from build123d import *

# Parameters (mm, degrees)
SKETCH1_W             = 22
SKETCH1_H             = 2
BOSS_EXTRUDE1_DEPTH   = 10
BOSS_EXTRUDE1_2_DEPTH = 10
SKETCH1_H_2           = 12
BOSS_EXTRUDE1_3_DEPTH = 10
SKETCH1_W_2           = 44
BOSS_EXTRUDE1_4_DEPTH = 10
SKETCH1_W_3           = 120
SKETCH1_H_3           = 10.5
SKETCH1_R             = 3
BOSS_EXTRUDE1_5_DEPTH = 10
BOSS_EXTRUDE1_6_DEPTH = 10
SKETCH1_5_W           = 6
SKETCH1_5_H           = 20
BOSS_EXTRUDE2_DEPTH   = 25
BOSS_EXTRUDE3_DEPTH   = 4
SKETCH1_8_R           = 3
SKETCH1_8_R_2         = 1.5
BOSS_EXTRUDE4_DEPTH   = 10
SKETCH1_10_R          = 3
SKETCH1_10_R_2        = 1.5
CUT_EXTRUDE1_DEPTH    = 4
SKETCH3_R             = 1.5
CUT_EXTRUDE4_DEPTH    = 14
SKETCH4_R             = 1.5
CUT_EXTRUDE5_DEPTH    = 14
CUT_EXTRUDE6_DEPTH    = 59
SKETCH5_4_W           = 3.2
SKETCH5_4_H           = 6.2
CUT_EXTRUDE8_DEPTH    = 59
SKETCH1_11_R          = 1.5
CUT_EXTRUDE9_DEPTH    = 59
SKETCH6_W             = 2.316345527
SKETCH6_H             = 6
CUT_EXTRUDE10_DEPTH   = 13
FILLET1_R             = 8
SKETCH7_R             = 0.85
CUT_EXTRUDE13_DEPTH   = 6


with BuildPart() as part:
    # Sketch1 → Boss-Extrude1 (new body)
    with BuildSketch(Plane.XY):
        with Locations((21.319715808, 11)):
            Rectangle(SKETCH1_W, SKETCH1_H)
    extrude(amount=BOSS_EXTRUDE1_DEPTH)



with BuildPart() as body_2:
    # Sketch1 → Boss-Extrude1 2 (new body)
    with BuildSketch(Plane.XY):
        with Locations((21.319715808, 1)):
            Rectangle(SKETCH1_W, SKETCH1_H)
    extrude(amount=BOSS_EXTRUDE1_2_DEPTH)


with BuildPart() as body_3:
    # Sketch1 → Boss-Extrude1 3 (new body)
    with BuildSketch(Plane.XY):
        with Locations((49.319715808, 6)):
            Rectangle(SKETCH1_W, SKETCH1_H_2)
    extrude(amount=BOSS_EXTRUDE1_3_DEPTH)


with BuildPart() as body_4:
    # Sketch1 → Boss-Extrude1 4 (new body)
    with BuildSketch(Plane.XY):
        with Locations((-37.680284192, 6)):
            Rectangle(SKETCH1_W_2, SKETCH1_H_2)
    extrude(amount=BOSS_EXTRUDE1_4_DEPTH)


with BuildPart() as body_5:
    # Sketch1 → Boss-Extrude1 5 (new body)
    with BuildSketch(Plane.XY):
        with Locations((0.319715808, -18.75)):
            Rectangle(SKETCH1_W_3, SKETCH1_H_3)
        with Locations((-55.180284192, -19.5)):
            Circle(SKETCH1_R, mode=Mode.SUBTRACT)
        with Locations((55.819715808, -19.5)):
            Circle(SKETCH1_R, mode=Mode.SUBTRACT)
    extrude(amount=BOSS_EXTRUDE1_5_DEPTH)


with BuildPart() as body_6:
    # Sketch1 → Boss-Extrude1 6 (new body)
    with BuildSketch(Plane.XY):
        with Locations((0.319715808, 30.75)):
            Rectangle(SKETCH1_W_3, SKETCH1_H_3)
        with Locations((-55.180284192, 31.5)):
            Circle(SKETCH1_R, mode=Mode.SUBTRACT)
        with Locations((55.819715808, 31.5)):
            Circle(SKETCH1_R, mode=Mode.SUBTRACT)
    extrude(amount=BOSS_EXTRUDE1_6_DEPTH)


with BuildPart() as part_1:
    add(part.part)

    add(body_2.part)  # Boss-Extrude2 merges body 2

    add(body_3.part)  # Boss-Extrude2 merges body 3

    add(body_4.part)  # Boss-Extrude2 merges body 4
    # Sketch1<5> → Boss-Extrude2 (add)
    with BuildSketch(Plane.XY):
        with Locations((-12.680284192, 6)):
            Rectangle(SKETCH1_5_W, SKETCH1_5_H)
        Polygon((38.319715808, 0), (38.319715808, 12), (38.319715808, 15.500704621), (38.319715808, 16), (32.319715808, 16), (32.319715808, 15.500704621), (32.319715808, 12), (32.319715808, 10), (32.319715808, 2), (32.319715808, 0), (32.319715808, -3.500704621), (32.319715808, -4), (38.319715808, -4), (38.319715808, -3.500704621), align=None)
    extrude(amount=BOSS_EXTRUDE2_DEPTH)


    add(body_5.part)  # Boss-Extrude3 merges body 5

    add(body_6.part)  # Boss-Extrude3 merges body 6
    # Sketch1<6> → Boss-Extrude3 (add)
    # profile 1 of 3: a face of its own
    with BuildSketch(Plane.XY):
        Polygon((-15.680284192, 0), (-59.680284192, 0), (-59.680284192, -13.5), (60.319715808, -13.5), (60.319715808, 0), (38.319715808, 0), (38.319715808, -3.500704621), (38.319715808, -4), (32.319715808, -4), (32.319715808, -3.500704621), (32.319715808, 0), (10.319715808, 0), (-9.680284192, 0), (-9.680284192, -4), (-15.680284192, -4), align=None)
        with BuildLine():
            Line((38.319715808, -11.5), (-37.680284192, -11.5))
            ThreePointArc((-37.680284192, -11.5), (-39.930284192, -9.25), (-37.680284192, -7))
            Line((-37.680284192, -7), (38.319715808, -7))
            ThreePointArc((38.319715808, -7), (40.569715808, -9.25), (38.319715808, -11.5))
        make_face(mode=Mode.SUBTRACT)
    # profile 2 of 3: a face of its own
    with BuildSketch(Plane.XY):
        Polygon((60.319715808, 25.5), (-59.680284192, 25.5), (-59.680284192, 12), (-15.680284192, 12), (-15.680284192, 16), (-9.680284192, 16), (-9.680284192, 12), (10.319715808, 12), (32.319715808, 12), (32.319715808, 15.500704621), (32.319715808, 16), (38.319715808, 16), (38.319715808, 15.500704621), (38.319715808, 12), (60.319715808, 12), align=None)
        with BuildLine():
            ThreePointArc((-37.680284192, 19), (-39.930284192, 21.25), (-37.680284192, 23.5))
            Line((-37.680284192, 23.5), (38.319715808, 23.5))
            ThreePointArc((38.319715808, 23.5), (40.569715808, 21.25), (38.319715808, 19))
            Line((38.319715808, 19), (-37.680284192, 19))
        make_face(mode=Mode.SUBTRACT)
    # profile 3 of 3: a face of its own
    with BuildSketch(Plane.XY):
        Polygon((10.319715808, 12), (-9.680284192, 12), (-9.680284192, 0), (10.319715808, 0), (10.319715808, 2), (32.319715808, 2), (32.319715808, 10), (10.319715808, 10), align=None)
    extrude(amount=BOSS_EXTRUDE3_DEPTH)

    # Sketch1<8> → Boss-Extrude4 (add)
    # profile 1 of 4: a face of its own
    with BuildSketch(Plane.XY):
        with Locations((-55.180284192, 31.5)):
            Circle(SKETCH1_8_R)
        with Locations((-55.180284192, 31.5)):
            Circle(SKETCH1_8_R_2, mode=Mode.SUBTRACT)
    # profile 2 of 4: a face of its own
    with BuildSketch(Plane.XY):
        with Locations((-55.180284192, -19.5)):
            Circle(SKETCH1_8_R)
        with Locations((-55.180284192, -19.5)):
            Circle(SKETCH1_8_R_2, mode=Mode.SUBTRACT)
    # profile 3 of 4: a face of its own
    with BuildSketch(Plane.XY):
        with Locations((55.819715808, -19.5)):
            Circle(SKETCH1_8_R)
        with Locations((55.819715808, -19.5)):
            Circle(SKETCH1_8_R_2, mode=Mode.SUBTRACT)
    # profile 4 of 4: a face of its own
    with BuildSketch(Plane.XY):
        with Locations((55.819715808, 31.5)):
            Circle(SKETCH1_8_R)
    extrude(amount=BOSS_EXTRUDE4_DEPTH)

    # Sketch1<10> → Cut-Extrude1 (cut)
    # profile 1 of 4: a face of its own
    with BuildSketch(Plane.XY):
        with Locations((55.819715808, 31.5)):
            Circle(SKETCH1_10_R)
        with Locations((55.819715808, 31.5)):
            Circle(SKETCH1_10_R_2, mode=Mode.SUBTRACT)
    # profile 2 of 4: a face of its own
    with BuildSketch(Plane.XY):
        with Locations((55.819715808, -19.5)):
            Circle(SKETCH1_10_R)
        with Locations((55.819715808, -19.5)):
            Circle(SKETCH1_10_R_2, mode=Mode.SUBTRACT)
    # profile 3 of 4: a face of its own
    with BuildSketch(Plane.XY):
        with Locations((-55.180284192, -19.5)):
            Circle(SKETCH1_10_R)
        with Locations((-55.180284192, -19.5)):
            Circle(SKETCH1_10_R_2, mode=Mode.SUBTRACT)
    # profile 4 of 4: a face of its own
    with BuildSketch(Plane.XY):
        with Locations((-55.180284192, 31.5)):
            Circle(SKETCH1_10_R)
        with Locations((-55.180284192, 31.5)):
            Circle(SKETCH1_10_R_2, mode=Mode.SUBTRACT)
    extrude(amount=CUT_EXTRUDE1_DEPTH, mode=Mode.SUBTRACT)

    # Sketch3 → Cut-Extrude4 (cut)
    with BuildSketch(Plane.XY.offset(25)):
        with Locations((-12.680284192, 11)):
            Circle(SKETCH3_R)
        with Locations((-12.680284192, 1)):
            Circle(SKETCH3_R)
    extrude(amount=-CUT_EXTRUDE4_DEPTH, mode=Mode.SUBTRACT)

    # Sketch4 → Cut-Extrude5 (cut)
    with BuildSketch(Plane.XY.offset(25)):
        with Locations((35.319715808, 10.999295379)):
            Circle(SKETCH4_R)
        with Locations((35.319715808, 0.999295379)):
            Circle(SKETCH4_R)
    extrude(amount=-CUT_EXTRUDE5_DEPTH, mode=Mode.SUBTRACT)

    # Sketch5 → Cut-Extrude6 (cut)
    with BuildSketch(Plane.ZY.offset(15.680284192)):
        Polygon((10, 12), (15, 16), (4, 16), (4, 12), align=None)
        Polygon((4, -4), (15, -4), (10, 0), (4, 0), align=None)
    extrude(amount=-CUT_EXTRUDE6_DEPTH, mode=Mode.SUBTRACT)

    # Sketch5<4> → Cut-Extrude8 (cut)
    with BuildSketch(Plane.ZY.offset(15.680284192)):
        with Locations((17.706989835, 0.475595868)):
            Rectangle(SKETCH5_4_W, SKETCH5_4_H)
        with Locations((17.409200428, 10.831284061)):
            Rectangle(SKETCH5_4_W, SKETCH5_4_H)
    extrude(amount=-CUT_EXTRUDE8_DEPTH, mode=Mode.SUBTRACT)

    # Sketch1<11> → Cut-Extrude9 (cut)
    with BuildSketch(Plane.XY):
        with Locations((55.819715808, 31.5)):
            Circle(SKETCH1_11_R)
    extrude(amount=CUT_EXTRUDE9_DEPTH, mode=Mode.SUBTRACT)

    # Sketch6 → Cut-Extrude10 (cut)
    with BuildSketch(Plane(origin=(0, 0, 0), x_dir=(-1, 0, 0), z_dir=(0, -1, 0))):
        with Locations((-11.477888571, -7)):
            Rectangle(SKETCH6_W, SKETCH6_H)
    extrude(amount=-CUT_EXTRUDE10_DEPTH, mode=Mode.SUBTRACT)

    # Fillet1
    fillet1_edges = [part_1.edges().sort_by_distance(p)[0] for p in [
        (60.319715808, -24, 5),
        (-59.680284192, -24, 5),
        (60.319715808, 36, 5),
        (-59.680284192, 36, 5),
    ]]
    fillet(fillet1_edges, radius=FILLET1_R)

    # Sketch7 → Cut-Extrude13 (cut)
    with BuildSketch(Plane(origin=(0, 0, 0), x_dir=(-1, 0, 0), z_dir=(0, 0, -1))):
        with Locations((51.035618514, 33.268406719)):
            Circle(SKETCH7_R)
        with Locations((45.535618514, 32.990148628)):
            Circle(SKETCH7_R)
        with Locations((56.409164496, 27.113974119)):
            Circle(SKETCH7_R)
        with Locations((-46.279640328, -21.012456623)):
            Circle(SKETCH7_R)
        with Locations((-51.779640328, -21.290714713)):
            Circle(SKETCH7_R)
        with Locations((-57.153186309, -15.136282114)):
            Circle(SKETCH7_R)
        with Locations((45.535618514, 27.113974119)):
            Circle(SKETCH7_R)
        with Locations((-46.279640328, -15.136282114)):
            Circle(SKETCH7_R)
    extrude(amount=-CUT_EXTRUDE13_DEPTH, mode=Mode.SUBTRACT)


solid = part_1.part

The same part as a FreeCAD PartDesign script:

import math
import FreeCAD as App
import Part
import Sketcher

V = App.Vector
Q = App.Units.Quantity


def edges_at(feature, points):
    """Names of the edges that pass closest to the given points."""
    edges = feature.Shape.Edges
    near = lambda p: min(range(len(edges)), key=lambda i: edges[i].distToShape(Part.Vertex(*p))[0])
    return sorted({f"Edge{near(p) + 1}" for p in points})

doc = App.newDocument("Part")
body = doc.addObject("PartDesign::Body", "Body")

sketch1 = doc.addObject("Sketcher::SketchObject", "Sketch")
body.addObject(sketch1)
sketch1.AttachmentSupport = (doc.XY_Plane, [""])
sketch1.MapMode = "FlatFace"
sketch1.addGeometry(Part.LineSegment(V(10.3, 12, 0), V(10.3, 10, 0)), False)
sketch1.addGeometry(Part.LineSegment(V(10.3, 10, 0), V(32.3, 10, 0)), False)
sketch1.addGeometry(Part.LineSegment(V(32.3, 10, 0), V(32.3, 12, 0)), False)
sketch1.addGeometry(Part.LineSegment(V(32.3, 12, 0), V(10.3, 12, 0)), False)
sketch1.addConstraint(Sketcher.Constraint("Coincident", 0, 2, 1, 1))
sketch1.addConstraint(Sketcher.Constraint("Coincident", 1, 2, 2, 1))
sketch1.addConstraint(Sketcher.Constraint("Coincident", 2, 2, 3, 1))
sketch1.addConstraint(Sketcher.Constraint("Coincident", 3, 2, 0, 1))
sketch1.addConstraint(Sketcher.Constraint("Vertical", 0))
sketch1.addConstraint(Sketcher.Constraint("Horizontal", 1))
sketch1.addConstraint(Sketcher.Constraint("Vertical", 2))
sketch1.addConstraint(Sketcher.Constraint("Horizontal", 3))
sketch1.addConstraint(Sketcher.Constraint("DistanceX", 1, 1, 1, 2, Q("22 mm")))
sketch1.addConstraint(Sketcher.Constraint("DistanceY", 0, 2, 0, 1, Q("2 mm")))
sketch1.addConstraint(Sketcher.Constraint("DistanceY", -1, 1, 0, 2, Q("10 mm")))
sketch1.addConstraint(Sketcher.Constraint("DistanceX", -1, 1, 0, 2, Q("10.319716 mm")))
pad1 = doc.addObject("PartDesign::Pad", "Pad")
body.addObject(pad1)
pad1.Profile = sketch1
pad1.Length = 10
body2 = doc.addObject("PartDesign::Body", "Body001")

sketch2 = doc.addObject("Sketcher::SketchObject", "Sketch001")
body2.addObject(sketch2)
sketch2.AttachmentSupport = (doc.getObject("XY_Plane001"), [""])
sketch2.MapMode = "FlatFace"
sketch2.addGeometry(Part.LineSegment(V(10.3, 2, 0), V(10.3, 0, 0)), False)
sketch2.addGeometry(Part.LineSegment(V(10.3, 0, 0), V(32.3, 0, 0)), False)
sketch2.addGeometry(Part.LineSegment(V(32.3, 0, 0), V(32.3, 2, 0)), False)
sketch2.addGeometry(Part.LineSegment(V(32.3, 2, 0), V(10.3, 2, 0)), False)
sketch2.addConstraint(Sketcher.Constraint("Coincident", 0, 2, 1, 1))
sketch2.addConstraint(Sketcher.Constraint("Coincident", 1, 2, 2, 1))
sketch2.addConstraint(Sketcher.Constraint("Coincident", 2, 2, 3, 1))
sketch2.addConstraint(Sketcher.Constraint("Coincident", 3, 2, 0, 1))
sketch2.addConstraint(Sketcher.Constraint("Vertical", 0))
sketch2.addConstraint(Sketcher.Constraint("Horizontal", 1))
sketch2.addConstraint(Sketcher.Constraint("Vertical", 2))
sketch2.addConstraint(Sketcher.Constraint("Horizontal", 3))
sketch2.addConstraint(Sketcher.Constraint("PointOnObject", 0, 2, -1))
sketch2.addConstraint(Sketcher.Constraint("DistanceX", 1, 1, 1, 2, Q("22 mm")))
sketch2.addConstraint(Sketcher.Constraint("DistanceY", 0, 2, 0, 1, Q("2 mm")))
sketch2.addConstraint(Sketcher.Constraint("DistanceX", -1, 1, 0, 2, Q("10.319716 mm")))
pad2 = doc.addObject("PartDesign::Pad", "Pad001")
body2.addObject(pad2)
pad2.Profile = sketch2
pad2.Length = 10
body3 = doc.addObject("PartDesign::Body", "Body002")

sketch3 = doc.addObject("Sketcher::SketchObject", "Sketch002")
body3.addObject(sketch3)
sketch3.AttachmentSupport = (doc.getObject("XY_Plane002"), [""])
sketch3.MapMode = "FlatFace"
sketch3.addGeometry(Part.LineSegment(V(38, 12, 0), V(38, 0, 0)), False)
sketch3.addGeometry(Part.LineSegment(V(38, 0, 0), V(60, 0, 0)), False)
sketch3.addGeometry(Part.LineSegment(V(60, 0, 0), V(60, 12, 0)), False)
sketch3.addGeometry(Part.LineSegment(V(60, 12, 0), V(38, 12, 0)), False)
sketch3.addConstraint(Sketcher.Constraint("Coincident", 0, 2, 1, 1))
sketch3.addConstraint(Sketcher.Constraint("Coincident", 1, 2, 2, 1))
sketch3.addConstraint(Sketcher.Constraint("Coincident", 2, 2, 3, 1))
sketch3.addConstraint(Sketcher.Constraint("Coincident", 3, 2, 0, 1))
sketch3.addConstraint(Sketcher.Constraint("Vertical", 0))
sketch3.addConstraint(Sketcher.Constraint("Horizontal", 1))
sketch3.addConstraint(Sketcher.Constraint("Vertical", 2))
sketch3.addConstraint(Sketcher.Constraint("Horizontal", 3))
sketch3.addConstraint(Sketcher.Constraint("PointOnObject", 0, 2, -1))
sketch3.addConstraint(Sketcher.Constraint("DistanceX", 1, 1, 1, 2, Q("22 mm")))
sketch3.addConstraint(Sketcher.Constraint("DistanceY", 0, 2, 0, 1, Q("12 mm")))
sketch3.addConstraint(Sketcher.Constraint("DistanceX", -1, 1, 0, 2, Q("38.319716 mm")))
pad3 = doc.addObject("PartDesign::Pad", "Pad002")
body3.addObject(pad3)
pad3.Profile = sketch3
pad3.Length = 10
body4 = doc.addObject("PartDesign::Body", "Body003")

sketch4 = doc.addObject("Sketcher::SketchObject", "Sketch003")
body4.addObject(sketch4)
sketch4.AttachmentSupport = (doc.getObject("XY_Plane003"), [""])
sketch4.MapMode = "FlatFace"
sketch4.addGeometry(Part.LineSegment(V(-60, 12, 0), V(-60, 0, 0)), False)
sketch4.addGeometry(Part.LineSegment(V(-60, 0, 0), V(-16, 0, 0)), False)
sketch4.addGeometry(Part.LineSegment(V(-16, 0, 0), V(-16, 12, 0)), False)
sketch4.addGeometry(Part.LineSegment(V(-16, 12, 0), V(-60, 12, 0)), False)
sketch4.addConstraint(Sketcher.Constraint("Coincident", 0, 2, 1, 1))
sketch4.addConstraint(Sketcher.Constraint("Coincident", 1, 2, 2, 1))
sketch4.addConstraint(Sketcher.Constraint("Coincident", 2, 2, 3, 1))
sketch4.addConstraint(Sketcher.Constraint("Coincident", 3, 2, 0, 1))
sketch4.addConstraint(Sketcher.Constraint("Vertical", 0))
sketch4.addConstraint(Sketcher.Constraint("Horizontal", 1))
sketch4.addConstraint(Sketcher.Constraint("Vertical", 2))
sketch4.addConstraint(Sketcher.Constraint("Horizontal", 3))
sketch4.addConstraint(Sketcher.Constraint("PointOnObject", 0, 2, -1))
sketch4.addConstraint(Sketcher.Constraint("DistanceX", 1, 1, 1, 2, Q("44 mm")))
sketch4.addConstraint(Sketcher.Constraint("DistanceY", 0, 2, 0, 1, Q("12 mm")))
sketch4.addConstraint(Sketcher.Constraint("DistanceX", 0, 2, -1, 1, Q("59.680284 mm")))
pad4 = doc.addObject("PartDesign::Pad", "Pad003")
body4.addObject(pad4)
pad4.Profile = sketch4
pad4.Length = 10
body5 = doc.addObject("PartDesign::Body", "Body004")

sketch5 = doc.addObject("Sketcher::SketchObject", "Sketch004")
body5.addObject(sketch5)
sketch5.AttachmentSupport = (doc.getObject("XY_Plane004"), [""])
sketch5.MapMode = "FlatFace"
sketch5.addGeometry(Part.LineSegment(V(-59.7, -13.5, 0), V(-59.7, -24, 0)), False)
sketch5.addGeometry(Part.LineSegment(V(-59.7, -24, 0), V(60.3, -24, 0)), False)
sketch5.addGeometry(Part.LineSegment(V(60.3, -24, 0), V(60.3, -13.5, 0)), False)
sketch5.addGeometry(Part.LineSegment(V(60.3, -13.5, 0), V(-59.7, -13.5, 0)), False)
sketch5.addGeometry(Part.Circle(V(-55.2, -19.5, 0), V(0, 0, 1), 3), False)
sketch5.addGeometry(Part.Circle(V(55.8, -19.5, 0), V(0, 0, 1), 3), False)
sketch5.addConstraint(Sketcher.Constraint("Coincident", 0, 2, 1, 1))
sketch5.addConstraint(Sketcher.Constraint("Coincident", 1, 2, 2, 1))
sketch5.addConstraint(Sketcher.Constraint("Coincident", 2, 2, 3, 1))
sketch5.addConstraint(Sketcher.Constraint("Coincident", 3, 2, 0, 1))
sketch5.addConstraint(Sketcher.Constraint("Vertical", 0))
sketch5.addConstraint(Sketcher.Constraint("Horizontal", 1))
sketch5.addConstraint(Sketcher.Constraint("Vertical", 2))
sketch5.addConstraint(Sketcher.Constraint("Horizontal", 3))
sketch5.addConstraint(Sketcher.Constraint("Equal", 4, 5))
sketch5.addConstraint(Sketcher.Constraint("Horizontal", 4, 3, 5, 3))
sketch5.addConstraint(Sketcher.Constraint("Diameter", 4, Q("6 mm")))
sketch5.addConstraint(Sketcher.Constraint("DistanceX", 1, 1, 1, 2, Q("120 mm")))
sketch5.addConstraint(Sketcher.Constraint("DistanceY", 0, 2, 0, 1, Q("10.5 mm")))
sketch5.addConstraint(Sketcher.Constraint("DistanceY", 0, 2, -1, 1, Q("24 mm")))
sketch5.addConstraint(Sketcher.Constraint("DistanceX", 4, 3, 5, 3, Q("111 mm")))
sketch5.addConstraint(Sketcher.Constraint("DistanceY", 5, 3, 2, 2, Q("6 mm")))
sketch5.addConstraint(Sketcher.Constraint("DistanceX", 0, 2, 4, 3, Q("4.5 mm")))
sketch5.addConstraint(Sketcher.Constraint("DistanceX", 4, 3, -1, 1, Q("55.180284 mm")))
pad5 = doc.addObject("PartDesign::Pad", "Pad004")
body5.addObject(pad5)
pad5.Profile = sketch5
pad5.Length = 10
body6 = doc.addObject("PartDesign::Body", "Body005")

sketch6 = doc.addObject("Sketcher::SketchObject", "Sketch005")
body6.addObject(sketch6)
sketch6.AttachmentSupport = (doc.getObject("XY_Plane005"), [""])
sketch6.MapMode = "FlatFace"
sketch6.addGeometry(Part.LineSegment(V(-59.7, 36, 0), V(-59.7, 25.5, 0)), False)
sketch6.addGeometry(Part.LineSegment(V(-59.7, 25.5, 0), V(60.3, 25.5, 0)), False)
sketch6.addGeometry(Part.LineSegment(V(60.3, 25.5, 0), V(60.3, 36, 0)), False)
sketch6.addGeometry(Part.LineSegment(V(60.3, 36, 0), V(-59.7, 36, 0)), False)
sketch6.addGeometry(Part.Circle(V(-55.2, 31.5, 0), V(0, 0, 1), 3), False)
sketch6.addGeometry(Part.Circle(V(55.8, 31.5, 0), V(0, 0, 1), 3), False)
sketch6.addConstraint(Sketcher.Constraint("Coincident", 0, 2, 1, 1))
sketch6.addConstraint(Sketcher.Constraint("Coincident", 1, 2, 2, 1))
sketch6.addConstraint(Sketcher.Constraint("Coincident", 2, 2, 3, 1))
sketch6.addConstraint(Sketcher.Constraint("Coincident", 3, 2, 0, 1))
sketch6.addConstraint(Sketcher.Constraint("Vertical", 0))
sketch6.addConstraint(Sketcher.Constraint("Horizontal", 1))
sketch6.addConstraint(Sketcher.Constraint("Vertical", 2))
sketch6.addConstraint(Sketcher.Constraint("Horizontal", 3))
sketch6.addConstraint(Sketcher.Constraint("Equal", 4, 5))
sketch6.addConstraint(Sketcher.Constraint("Horizontal", 4, 3, 5, 3))
sketch6.addConstraint(Sketcher.Constraint("Diameter", 4, Q("6 mm")))
sketch6.addConstraint(Sketcher.Constraint("DistanceX", 1, 1, 1, 2, Q("120 mm")))
sketch6.addConstraint(Sketcher.Constraint("DistanceY", 0, 2, 0, 1, Q("10.5 mm")))
sketch6.addConstraint(Sketcher.Constraint("DistanceY", -1, 1, 2, 2, Q("36 mm")))
sketch6.addConstraint(Sketcher.Constraint("DistanceX", 4, 3, 5, 3, Q("111 mm")))
sketch6.addConstraint(Sketcher.Constraint("DistanceY", 0, 2, 4, 3, Q("6 mm")))
sketch6.addConstraint(Sketcher.Constraint("DistanceX", 0, 2, 4, 3, Q("4.5 mm")))
sketch6.addConstraint(Sketcher.Constraint("DistanceX", 4, 3, -1, 1, Q("55.180284 mm")))
pad6 = doc.addObject("PartDesign::Pad", "Pad005")
body6.addObject(pad6)
pad6.Profile = sketch6
pad6.Length = 10
body.AllowCompound = True
doc.recompute()

boolean = doc.addObject("PartDesign::Boolean", "Boolean")
body.addObject(boolean)
boolean.Type = "Fuse"
boolean.addObjects([body2])
doc.recompute()

boolean2 = doc.addObject("PartDesign::Boolean", "Boolean001")
body.addObject(boolean2)
boolean2.Type = "Fuse"
boolean2.addObjects([body3])
doc.recompute()

boolean3 = doc.addObject("PartDesign::Boolean", "Boolean002")
body.addObject(boolean3)
boolean3.Type = "Fuse"
boolean3.addObjects([body4])

sketch7 = doc.addObject("Sketcher::SketchObject", "Sketch006")
body.addObject(sketch7)
sketch7.AttachmentSupport = (doc.XY_Plane, [""])
sketch7.MapMode = "FlatFace"
sketch7.addGeometry(Part.LineSegment(V(-16, 16, 0), V(-16, -4, 0)), False)
sketch7.addGeometry(Part.LineSegment(V(-16, -4, 0), V(-10, -4, 0)), False)
sketch7.addGeometry(Part.LineSegment(V(-10, -4, 0), V(-10, 16, 0)), False)
sketch7.addGeometry(Part.LineSegment(V(-10, 16, 0), V(-16, 16, 0)), False)
sketch7.addGeometry(Part.LineSegment(V(38, 16, 0), V(32, 16, 0)), False)
sketch7.addGeometry(Part.LineSegment(V(32, 16, 0), V(32, -4, 0)), False)
sketch7.addGeometry(Part.LineSegment(V(32, -4, 0), V(38, -4, 0)), False)
sketch7.addGeometry(Part.LineSegment(V(38, -4, 0), V(38, 16, 0)), False)
sketch7.addConstraint(Sketcher.Constraint("Coincident", 0, 2, 1, 1))
sketch7.addConstraint(Sketcher.Constraint("Coincident", 1, 2, 2, 1))
sketch7.addConstraint(Sketcher.Constraint("Coincident", 2, 2, 3, 1))
sketch7.addConstraint(Sketcher.Constraint("Coincident", 3, 2, 0, 1))
sketch7.addConstraint(Sketcher.Constraint("Coincident", 4, 2, 5, 1))
sketch7.addConstraint(Sketcher.Constraint("Coincident", 5, 2, 6, 1))
sketch7.addConstraint(Sketcher.Constraint("Coincident", 6, 2, 7, 1))
sketch7.addConstraint(Sketcher.Constraint("Coincident", 7, 2, 4, 1))
sketch7.addConstraint(Sketcher.Constraint("Vertical", 0))
sketch7.addConstraint(Sketcher.Constraint("Horizontal", 1))
sketch7.addConstraint(Sketcher.Constraint("Vertical", 2))
sketch7.addConstraint(Sketcher.Constraint("Horizontal", 3))
sketch7.addConstraint(Sketcher.Constraint("Horizontal", 4))
sketch7.addConstraint(Sketcher.Constraint("Vertical", 5))
sketch7.addConstraint(Sketcher.Constraint("Horizontal", 6))
sketch7.addConstraint(Sketcher.Constraint("Vertical", 7))
sketch7.addConstraint(Sketcher.Constraint("Horizontal", 3, 2, 4, 2))
sketch7.addConstraint(Sketcher.Constraint("Horizontal", 1, 2, 5, 2))
sketch7.addConstraint(Sketcher.Constraint("Equal", 3, 4))
sketch7.addConstraint(Sketcher.Constraint("DistanceX", 1, 1, 1, 2, Q("6 mm")))
sketch7.addConstraint(Sketcher.Constraint("DistanceY", 0, 2, 0, 1, Q("20 mm")))
sketch7.addConstraint(Sketcher.Constraint("DistanceY", 0, 2, -1, 1, Q("4 mm")))
sketch7.addConstraint(Sketcher.Constraint("DistanceX", 2, 2, 4, 2, Q("42 mm")))
sketch7.addConstraint(Sketcher.Constraint("DistanceX", 0, 2, -1, 1, Q("15.680284 mm")))
pad7 = doc.addObject("PartDesign::Pad", "Pad006")
body.addObject(pad7)
pad7.Profile = sketch7
pad7.Length = 25
doc.recompute()

boolean4 = doc.addObject("PartDesign::Boolean", "Boolean003")
body.addObject(boolean4)
boolean4.Type = "Fuse"
boolean4.addObjects([body5])
doc.recompute()

boolean5 = doc.addObject("PartDesign::Boolean", "Boolean004")
body.addObject(boolean5)
boolean5.Type = "Fuse"
boolean5.addObjects([body6])

sketch8 = doc.addObject("Sketcher::SketchObject", "Sketch007")
body.addObject(sketch8)
sketch8.AttachmentSupport = (doc.XY_Plane, [""])
sketch8.MapMode = "FlatFace"
sketch8.addGeometry(Part.LineSegment(V(-15.7, 0, 0), V(-59.7, 0, 0)), False)
sketch8.addGeometry(Part.LineSegment(V(-59.7, 0, 0), V(-59.7, -13.5, 0)), False)
sketch8.addGeometry(Part.LineSegment(V(-59.7, -13.5, 0), V(60.3, -13.5, 0)), False)
sketch8.addGeometry(Part.LineSegment(V(60.3, -13.5, 0), V(60.3, 0, 0)), False)
sketch8.addGeometry(Part.LineSegment(V(60.3, 0, 0), V(38.3, 0, 0)), False)
sketch8.addGeometry(Part.LineSegment(V(38.3, 0, 0), V(38.3, -4, 0)), False)
sketch8.addGeometry(Part.LineSegment(V(38.3, -4, 0), V(32.3, -4, 0)), False)
sketch8.addGeometry(Part.LineSegment(V(32.3, -4, 0), V(32.3, 0, 0)), False)
sketch8.addGeometry(Part.LineSegment(V(32.3, 0, 0), V(10.3, 0, 0)), False)
sketch8.addGeometry(Part.LineSegment(V(10.3, 0, 0), V(10.3, 2, 0)), False)
sketch8.addGeometry(Part.LineSegment(V(10.3, 2, 0), V(32.3, 2, 0)), False)
sketch8.addGeometry(Part.LineSegment(V(32.3, 2, 0), V(32.3, 10, 0)), False)
sketch8.addGeometry(Part.LineSegment(V(32.3, 10, 0), V(10.3, 10, 0)), False)
sketch8.addGeometry(Part.LineSegment(V(10.3, 10, 0), V(10.3, 12, 0)), False)
sketch8.addGeometry(Part.LineSegment(V(10.3, 12, 0), V(32.3, 12, 0)), False)
sketch8.addGeometry(Part.LineSegment(V(32.3, 12, 0), V(32.3, 16, 0)), False)
sketch8.addGeometry(Part.LineSegment(V(32.3, 16, 0), V(38.3, 16, 0)), False)
sketch8.addGeometry(Part.LineSegment(V(38.3, 16, 0), V(38.3, 12, 0)), False)
sketch8.addGeometry(Part.LineSegment(V(38.3, 12, 0), V(60.3, 12, 0)), False)
sketch8.addGeometry(Part.LineSegment(V(60.3, 12, 0), V(60.3, 25.5, 0)), False)
sketch8.addGeometry(Part.LineSegment(V(60.3, 25.5, 0), V(-59.7, 25.5, 0)), False)
sketch8.addGeometry(Part.LineSegment(V(-59.7, 25.5, 0), V(-59.7, 12, 0)), False)
sketch8.addGeometry(Part.LineSegment(V(-59.7, 12, 0), V(-15.7, 12, 0)), False)
sketch8.addGeometry(Part.LineSegment(V(-15.7, 12, 0), V(-15.7, 16, 0)), False)
sketch8.addGeometry(Part.LineSegment(V(-15.7, 16, 0), V(-9.7, 16, 0)), False)
sketch8.addGeometry(Part.LineSegment(V(-9.7, 16, 0), V(-9.7, -4, 0)), False)
sketch8.addGeometry(Part.LineSegment(V(-9.7, -4, 0), V(-15.7, -4, 0)), False)
sketch8.addGeometry(Part.LineSegment(V(-15.7, -4, 0), V(-15.7, 0, 0)), False)
sketch8.addGeometry(Part.ArcOfCircle(Part.Circle(V(38.3, -9.2, 0), V(0, 0, 1), 2.2), math.radians(-90), math.radians(90)), False)
sketch8.addGeometry(Part.LineSegment(V(38.3, -11.5, 0), V(-37.7, -11.5, 0)), False)
sketch8.addGeometry(Part.ArcOfCircle(Part.Circle(V(-37.7, -9.2, 0), V(0, 0, 1), 2.2), math.radians(90), math.radians(270)), False)
sketch8.addGeometry(Part.LineSegment(V(-37.7, -7, 0), V(38.3, -7, 0)), False)
sketch8.addGeometry(Part.ArcOfCircle(Part.Circle(V(-37.7, 21.2, 0), V(0, 0, 1), 2.2), math.radians(90), math.radians(270)), False)
sketch8.addGeometry(Part.LineSegment(V(-37.7, 23.5, 0), V(38.3, 23.5, 0)), False)
sketch8.addGeometry(Part.ArcOfCircle(Part.Circle(V(38.3, 21.2, 0), V(0, 0, 1), 2.2), math.radians(-90), math.radians(90)), False)
sketch8.addGeometry(Part.LineSegment(V(38.3, 19, 0), V(-37.7, 19, 0)), False)
sketch8.addConstraint(Sketcher.Constraint("Coincident", 0, 2, 1, 1))
sketch8.addConstraint(Sketcher.Constraint("Coincident", 1, 2, 2, 1))
sketch8.addConstraint(Sketcher.Constraint("Coincident", 2, 2, 3, 1))
sketch8.addConstraint(Sketcher.Constraint("Coincident", 3, 2, 4, 1))
sketch8.addConstraint(Sketcher.Constraint("Coincident", 4, 2, 5, 1))
sketch8.addConstraint(Sketcher.Constraint("Coincident", 5, 2, 6, 1))
sketch8.addConstraint(Sketcher.Constraint("Coincident", 6, 2, 7, 1))
sketch8.addConstraint(Sketcher.Constraint("Coincident", 7, 2, 8, 1))
sketch8.addConstraint(Sketcher.Constraint("Coincident", 8, 2, 9, 1))
sketch8.addConstraint(Sketcher.Constraint("Coincident", 9, 2, 10, 1))
sketch8.addConstraint(Sketcher.Constraint("Coincident", 10, 2, 11, 1))
sketch8.addConstraint(Sketcher.Constraint("Coincident", 11, 2, 12, 1))
sketch8.addConstraint(Sketcher.Constraint("Coincident", 12, 2, 13, 1))
sketch8.addConstraint(Sketcher.Constraint("Coincident", 13, 2, 14, 1))
sketch8.addConstraint(Sketcher.Constraint("Coincident", 14, 2, 15, 1))
sketch8.addConstraint(Sketcher.Constraint("Coincident", 15, 2, 16, 1))
sketch8.addConstraint(Sketcher.Constraint("Coincident", 16, 2, 17, 1))
sketch8.addConstraint(Sketcher.Constraint("Coincident", 17, 2, 18, 1))
sketch8.addConstraint(Sketcher.Constraint("Coincident", 18, 2, 19, 1))
sketch8.addConstraint(Sketcher.Constraint("Coincident", 19, 2, 20, 1))
sketch8.addConstraint(Sketcher.Constraint("Coincident", 20, 2, 21, 1))
sketch8.addConstraint(Sketcher.Constraint("Coincident", 21, 2, 22, 1))
sketch8.addConstraint(Sketcher.Constraint("Coincident", 22, 2, 23, 1))
sketch8.addConstraint(Sketcher.Constraint("Coincident", 23, 2, 24, 1))
sketch8.addConstraint(Sketcher.Constraint("Coincident", 24, 2, 25, 1))
sketch8.addConstraint(Sketcher.Constraint("Coincident", 25, 2, 26, 1))
sketch8.addConstraint(Sketcher.Constraint("Coincident", 26, 2, 27, 1))
sketch8.addConstraint(Sketcher.Constraint("Coincident", 27, 2, 0, 1))
sketch8.addConstraint(Sketcher.Constraint("Tangent", 28, 1, 29, 1))
sketch8.addConstraint(Sketcher.Constraint("Tangent", 29, 2, 30, 2))
sketch8.addConstraint(Sketcher.Constraint("Tangent", 30, 1, 31, 1))
sketch8.addConstraint(Sketcher.Constraint("Tangent", 31, 2, 28, 2))
sketch8.addConstraint(Sketcher.Constraint("Tangent", 32, 1, 33, 1))
sketch8.addConstraint(Sketcher.Constraint("Tangent", 33, 2, 34, 2))
sketch8.addConstraint(Sketcher.Constraint("Tangent", 34, 1, 35, 1))
sketch8.addConstraint(Sketcher.Constraint("Tangent", 35, 2, 32, 2))
sketch8.addConstraint(Sketcher.Constraint("Horizontal", 0))
sketch8.addConstraint(Sketcher.Constraint("Vertical", 1))
sketch8.addConstraint(Sketcher.Constraint("Horizontal", 2))
sketch8.addConstraint(Sketcher.Constraint("Vertical", 3))
sketch8.addConstraint(Sketcher.Constraint("Horizontal", 4))
sketch8.addConstraint(Sketcher.Constraint("Vertical", 5))
sketch8.addConstraint(Sketcher.Constraint("Horizontal", 6))
sketch8.addConstraint(Sketcher.Constraint("Vertical", 7))
sketch8.addConstraint(Sketcher.Constraint("Horizontal", 8))
sketch8.addConstraint(Sketcher.Constraint("Vertical", 9))
sketch8.addConstraint(Sketcher.Constraint("Horizontal", 10))
sketch8.addConstraint(Sketcher.Constraint("Vertical", 11))
sketch8.addConstraint(Sketcher.Constraint("Horizontal", 12))
sketch8.addConstraint(Sketcher.Constraint("Vertical", 13))
sketch8.addConstraint(Sketcher.Constraint("Horizontal", 14))
sketch8.addConstraint(Sketcher.Constraint("Vertical", 15))
sketch8.addConstraint(Sketcher.Constraint("Horizontal", 16))
sketch8.addConstraint(Sketcher.Constraint("Vertical", 17))
sketch8.addConstraint(Sketcher.Constraint("Horizontal", 18))
sketch8.addConstraint(Sketcher.Constraint("Vertical", 19))
sketch8.addConstraint(Sketcher.Constraint("Horizontal", 20))
sketch8.addConstraint(Sketcher.Constraint("Vertical", 21))
sketch8.addConstraint(Sketcher.Constraint("Horizontal", 22))
sketch8.addConstraint(Sketcher.Constraint("Vertical", 23))
sketch8.addConstraint(Sketcher.Constraint("Horizontal", 24))
sketch8.addConstraint(Sketcher.Constraint("Vertical", 25))
sketch8.addConstraint(Sketcher.Constraint("Horizontal", 26))
sketch8.addConstraint(Sketcher.Constraint("Vertical", 27))
sketch8.addConstraint(Sketcher.Constraint("Horizontal", 29))
sketch8.addConstraint(Sketcher.Constraint("Horizontal", 31))
sketch8.addConstraint(Sketcher.Constraint("Horizontal", 33))
sketch8.addConstraint(Sketcher.Constraint("Horizontal", 35))
sketch8.addConstraint(Sketcher.Constraint("Equal", 30, 32))
sketch8.addConstraint(Sketcher.Constraint("PointOnObject", 0, 2, -1))
sketch8.addConstraint(Sketcher.Constraint("PointOnObject", 3, 2, -1))
sketch8.addConstraint(Sketcher.Constraint("PointOnObject", 7, 2, -1))
sketch8.addConstraint(Sketcher.Constraint("Horizontal", 14, 2, 17, 2))
sketch8.addConstraint(Sketcher.Constraint("Horizontal", 18, 2, 21, 2))
sketch8.addConstraint(Sketcher.Constraint("Horizontal", 16, 2, 23, 2))
sketch8.addConstraint(Sketcher.Constraint("Horizontal", 6, 2, 25, 2))
sketch8.addConstraint(Sketcher.Constraint("Vertical", 30, 3, 32, 3))
sketch8.addConstraint(Sketcher.Constraint("Vertical", 28, 3, 34, 3))
sketch8.addConstraint(Sketcher.Constraint("Vertical", 34, 3, 4, 2))
sketch8.addConstraint(Sketcher.Constraint("Vertical", 7, 2, 10, 2))
sketch8.addConstraint(Sketcher.Constraint("Vertical", 9, 2, 12, 2))
sketch8.addConstraint(Sketcher.Constraint("Vertical", 11, 2, 14, 2))
sketch8.addConstraint(Sketcher.Constraint("Vertical", 5, 2, 16, 2))
sketch8.addConstraint(Sketcher.Constraint("Vertical", 3, 2, 18, 2))
sketch8.addConstraint(Sketcher.Constraint("Vertical", 1, 2, 20, 2))
sketch8.addConstraint(Sketcher.Constraint("Vertical", 23, 2, 26, 2))
sketch8.addConstraint(Sketcher.Constraint("Equal", 4, 8))
sketch8.addConstraint(Sketcher.Constraint("Equal", 16, 24))
sketch8.addConstraint(Sketcher.Constraint("Equal", 9, 13))
sketch8.addConstraint(Sketcher.Constraint("Equal", 7, 15))
sketch8.addConstraint(Sketcher.Constraint("Equal", 3, 19))
sketch8.addConstraint(Sketcher.Constraint("DistanceX", 0, 2, 0, 1, Q("44 mm")))
sketch8.addConstraint(Sketcher.Constraint("DistanceX", 2, 1, 2, 2, Q("120 mm")))
sketch8.addConstraint(Sketcher.Constraint("DistanceX", 4, 2, 4, 1, Q("22 mm")))
sketch8.addConstraint(Sketcher.Constraint("DistanceX", 6, 2, 6, 1, Q("6 mm")))
sketch8.addConstraint(Sketcher.Constraint("DistanceX", 29, 2, 29, 1, Q("76 mm")))
sketch8.addConstraint(Sketcher.Constraint("DistanceY", 5, 2, 5, 1, Q("4 mm")))
sketch8.addConstraint(Sketcher.Constraint("DistanceY", 9, 1, 9, 2, Q("2 mm")))
sketch8.addConstraint(Sketcher.Constraint("DistanceY", 11, 1, 11, 2, Q("8 mm")))
sketch8.addConstraint(Sketcher.Constraint("Radius", 28, Q("2.25 mm")))
sketch8.addConstraint(Sketcher.Constraint("DistanceY", 1, 2, 1, 1, Q("13.5 mm")))
sketch8.addConstraint(Sketcher.Constraint("DistanceY", 30, 1, -1, 1, Q("7 mm")))
sketch8.addConstraint(Sketcher.Constraint("DistanceY", -1, 1, 34, 1, Q("19 mm")))
sketch8.addConstraint(Sketcher.Constraint("DistanceX", -1, 1, 28, 3, Q("38.319716 mm")))
pad8 = doc.addObject("PartDesign::Pad", "Pad007")
body.addObject(pad8)
pad8.Profile = sketch8
pad8.Length = 4

sketch9 = doc.addObject("Sketcher::SketchObject", "Sketch008")
body.addObject(sketch9)
sketch9.AttachmentSupport = (doc.XY_Plane, [""])
sketch9.MapMode = "FlatFace"
sketch9.addGeometry(Part.Circle(V(-55.2, 31.5, 0), V(0, 0, 1), 3), False)
sketch9.addGeometry(Part.Circle(V(-55.2, 31.5, 0), V(0, 0, 1), 1.5), False)
sketch9.addGeometry(Part.Circle(V(-55.2, -19.5, 0), V(0, 0, 1), 3), False)
sketch9.addGeometry(Part.Circle(V(-55.2, -19.5, 0), V(0, 0, 1), 1.5), False)
sketch9.addGeometry(Part.Circle(V(55.8, -19.5, 0), V(0, 0, 1), 3), False)
sketch9.addGeometry(Part.Circle(V(55.8, -19.5, 0), V(0, 0, 1), 1.5), False)
sketch9.addGeometry(Part.Circle(V(55.8, 31.5, 0), V(0, 0, 1), 3), False)
sketch9.addConstraint(Sketcher.Constraint("Coincident", 1, 3, 0, 3))
sketch9.addConstraint(Sketcher.Constraint("Coincident", 3, 3, 2, 3))
sketch9.addConstraint(Sketcher.Constraint("Coincident", 5, 3, 4, 3))
sketch9.addConstraint(Sketcher.Constraint("Equal", 0, 2))
sketch9.addConstraint(Sketcher.Constraint("Equal", 1, 3))
sketch9.addConstraint(Sketcher.Constraint("Equal", 2, 4))
sketch9.addConstraint(Sketcher.Constraint("Equal", 3, 5))
sketch9.addConstraint(Sketcher.Constraint("Equal", 4, 6))
sketch9.addConstraint(Sketcher.Constraint("Horizontal", 3, 3, 4, 3))
sketch9.addConstraint(Sketcher.Constraint("Horizontal", 1, 3, 6, 3))
sketch9.addConstraint(Sketcher.Constraint("Vertical", 1, 3, 2, 3))
sketch9.addConstraint(Sketcher.Constraint("Vertical", 5, 3, 6, 3))
sketch9.addConstraint(Sketcher.Constraint("Diameter", 0, Q("6 mm")))
sketch9.addConstraint(Sketcher.Constraint("Diameter", 1, Q("3 mm")))
sketch9.addConstraint(Sketcher.Constraint("DistanceY", 2, 3, 0, 3, Q("51 mm")))
sketch9.addConstraint(Sketcher.Constraint("DistanceX", 2, 3, 4, 3, Q("111 mm")))
sketch9.addConstraint(Sketcher.Constraint("DistanceY", -1, 1, 0, 3, Q("31.5 mm")))
sketch9.addConstraint(Sketcher.Constraint("DistanceX", 0, 3, -1, 1, Q("55.180284 mm")))
pad9 = doc.addObject("PartDesign::Pad", "Pad008")
body.addObject(pad9)
pad9.Profile = sketch9
pad9.Length = 10

sketch10 = doc.addObject("Sketcher::SketchObject", "Sketch009")
body.addObject(sketch10)
sketch10.AttachmentSupport = (doc.XY_Plane, [""])
sketch10.MapMode = "FlatFace"
sketch10.addGeometry(Part.Circle(V(55.8, 31.5, 0), V(0, 0, 1), 3), False)
sketch10.addGeometry(Part.Circle(V(55.8, 31.5, 0), V(0, 0, 1), 1.5), False)
sketch10.addGeometry(Part.Circle(V(55.8, -19.5, 0), V(0, 0, 1), 3), False)
sketch10.addGeometry(Part.Circle(V(55.8, -19.5, 0), V(0, 0, 1), 1.5), False)
sketch10.addGeometry(Part.Circle(V(-55.2, -19.5, 0), V(0, 0, 1), 3), False)
sketch10.addGeometry(Part.Circle(V(-55.2, -19.5, 0), V(0, 0, 1), 1.5), False)
sketch10.addGeometry(Part.Circle(V(-55.2, 31.5, 0), V(0, 0, 1), 3), False)
sketch10.addGeometry(Part.Circle(V(-55.2, 31.5, 0), V(0, 0, 1), 1.5), False)
sketch10.addConstraint(Sketcher.Constraint("Coincident", 1, 3, 0, 3))
sketch10.addConstraint(Sketcher.Constraint("Coincident", 3, 3, 2, 3))
sketch10.addConstraint(Sketcher.Constraint("Coincident", 5, 3, 4, 3))
sketch10.addConstraint(Sketcher.Constraint("Coincident", 7, 3, 6, 3))
sketch10.addConstraint(Sketcher.Constraint("Equal", 0, 2))
sketch10.addConstraint(Sketcher.Constraint("Equal", 1, 3))
sketch10.addConstraint(Sketcher.Constraint("Equal", 2, 4))
sketch10.addConstraint(Sketcher.Constraint("Equal", 3, 5))
sketch10.addConstraint(Sketcher.Constraint("Equal", 4, 6))
sketch10.addConstraint(Sketcher.Constraint("Equal", 5, 7))
sketch10.addConstraint(Sketcher.Constraint("Horizontal", 3, 3, 4, 3))
sketch10.addConstraint(Sketcher.Constraint("Horizontal", 1, 3, 6, 3))
sketch10.addConstraint(Sketcher.Constraint("Vertical", 1, 3, 2, 3))
sketch10.addConstraint(Sketcher.Constraint("Vertical", 5, 3, 6, 3))
sketch10.addConstraint(Sketcher.Constraint("Diameter", 0, Q("6 mm")))
sketch10.addConstraint(Sketcher.Constraint("Diameter", 1, Q("3 mm")))
sketch10.addConstraint(Sketcher.Constraint("DistanceY", 2, 3, 0, 3, Q("51 mm")))
sketch10.addConstraint(Sketcher.Constraint("DistanceX", 4, 3, 2, 3, Q("111 mm")))
sketch10.addConstraint(Sketcher.Constraint("DistanceY", -1, 1, 0, 3, Q("31.5 mm")))
sketch10.addConstraint(Sketcher.Constraint("DistanceX", -1, 1, 0, 3, Q("55.819716 mm")))
pocket1 = doc.addObject("PartDesign::Pocket", "Pocket")
body.addObject(pocket1)
pocket1.Profile = sketch10
pocket1.Length = 4
pocket1.Reversed = True

sketch11 = doc.addObject("Sketcher::SketchObject", "Sketch010")
body.addObject(sketch11)
sketch11.AttachmentSupport = (doc.XY_Plane, [""])
sketch11.MapMode = "FlatFace"
sketch11.AttachmentOffset = App.Placement(V(0, 0, 25), App.Rotation())
sketch11.addGeometry(Part.Circle(V(-12.7, 11, 0), V(0, 0, 1), 1.5), False)
sketch11.addGeometry(Part.Circle(V(-12.7, 1, 0), V(0, 0, 1), 1.5), False)
sketch11.addConstraint(Sketcher.Constraint("Equal", 0, 1))
sketch11.addConstraint(Sketcher.Constraint("Vertical", 0, 3, 1, 3))
sketch11.addConstraint(Sketcher.Constraint("Diameter", 0, Q("3 mm")))
sketch11.addConstraint(Sketcher.Constraint("DistanceY", -1, 1, 0, 3, Q("11 mm")))
sketch11.addConstraint(Sketcher.Constraint("DistanceY", -1, 1, 1, 3, Q("1 mm")))
sketch11.addConstraint(Sketcher.Constraint("DistanceX", 0, 3, -1, 1, Q("12.680284 mm")))
pocket2 = doc.addObject("PartDesign::Pocket", "Pocket001")
body.addObject(pocket2)
pocket2.Profile = sketch11
pocket2.Length = 14

sketch12 = doc.addObject("Sketcher::SketchObject", "Sketch011")
body.addObject(sketch12)
sketch12.AttachmentSupport = (doc.XY_Plane, [""])
sketch12.MapMode = "FlatFace"
sketch12.AttachmentOffset = App.Placement(V(0, 0, 25), App.Rotation())
sketch12.addGeometry(Part.Circle(V(35.3, 11, 0), V(0, 0, 1), 1.5), False)
sketch12.addGeometry(Part.Circle(V(35.3, 1, 0), V(0, 0, 1), 1.5), False)
sketch12.addConstraint(Sketcher.Constraint("Equal", 0, 1))
sketch12.addConstraint(Sketcher.Constraint("Vertical", 0, 3, 1, 3))
sketch12.addConstraint(Sketcher.Constraint("Diameter", 0, Q("3 mm")))
sketch12.addConstraint(Sketcher.Constraint("DistanceY", 1, 3, 0, 3, Q("10 mm")))
sketch12.addConstraint(Sketcher.Constraint("DistanceX", -1, 1, 0, 3, Q("35.319716 mm")))
sketch12.addConstraint(Sketcher.Constraint("DistanceY", -1, 1, 0, 3, Q("10.999295 mm")))
pocket3 = doc.addObject("PartDesign::Pocket", "Pocket002")
body.addObject(pocket3)
pocket3.Profile = sketch12
pocket3.Length = 14

sketch13 = doc.addObject("Sketcher::SketchObject", "Sketch012")
body.addObject(sketch13)
sketch13.AttachmentSupport = (doc.YZ_Plane, [""])
sketch13.MapMode = "FlatFace"
sketch13.AttachmentOffset = App.Placement(V(0, 0, -15.680284), App.Rotation())
sketch13.addGeometry(Part.LineSegment(V(12, 10, 0), V(16, 15, 0)), False)
sketch13.addGeometry(Part.LineSegment(V(16, 15, 0), V(16, 4, 0)), False)
sketch13.addGeometry(Part.LineSegment(V(16, 4, 0), V(12, 4, 0)), False)
sketch13.addGeometry(Part.LineSegment(V(12, 4, 0), V(12, 10, 0)), False)
sketch13.addGeometry(Part.LineSegment(V(-4, 4, 0), V(-4, 15, 0)), False)
sketch13.addGeometry(Part.LineSegment(V(-4, 15, 0), V(0, 10, 0)), False)
sketch13.addGeometry(Part.LineSegment(V(0, 10, 0), V(0, 4, 0)), False)
sketch13.addGeometry(Part.LineSegment(V(0, 4, 0), V(-4, 4, 0)), False)
sketch13.addConstraint(Sketcher.Constraint("Coincident", 0, 2, 1, 1))
sketch13.addConstraint(Sketcher.Constraint("Coincident", 1, 2, 2, 1))
sketch13.addConstraint(Sketcher.Constraint("Coincident", 2, 2, 3, 1))
sketch13.addConstraint(Sketcher.Constraint("Coincident", 3, 2, 0, 1))
sketch13.addConstraint(Sketcher.Constraint("Coincident", 4, 2, 5, 1))
sketch13.addConstraint(Sketcher.Constraint("Coincident", 5, 2, 6, 1))
sketch13.addConstraint(Sketcher.Constraint("Coincident", 6, 2, 7, 1))
sketch13.addConstraint(Sketcher.Constraint("Coincident", 7, 2, 4, 1))
sketch13.addConstraint(Sketcher.Constraint("Vertical", 1))
sketch13.addConstraint(Sketcher.Constraint("Horizontal", 2))
sketch13.addConstraint(Sketcher.Constraint("Vertical", 3))
sketch13.addConstraint(Sketcher.Constraint("Vertical", 4))
sketch13.addConstraint(Sketcher.Constraint("Vertical", 6))
sketch13.addConstraint(Sketcher.Constraint("Horizontal", 7))
sketch13.addConstraint(Sketcher.Constraint("PointOnObject", 5, 2, -2))
sketch13.addConstraint(Sketcher.Constraint("Horizontal", 0, 2, 4, 2))
sketch13.addConstraint(Sketcher.Constraint("Horizontal", 3, 2, 5, 2))
sketch13.addConstraint(Sketcher.Constraint("Horizontal", 2, 2, 6, 2))
sketch13.addConstraint(Sketcher.Constraint("Equal", 2, 7))
sketch13.addConstraint(Sketcher.Constraint("DistanceX", 2, 2, 2, 1, Q("4 mm")))
sketch13.addConstraint(Sketcher.Constraint("DistanceY", 1, 2, 1, 1, Q("11 mm")))
sketch13.addConstraint(Sketcher.Constraint("DistanceY", 3, 1, 3, 2, Q("6 mm")))
sketch13.addConstraint(Sketcher.Constraint("DistanceX", -1, 1, 0, 2, Q("16 mm")))
sketch13.addConstraint(Sketcher.Constraint("DistanceY", -1, 1, 0, 2, Q("15 mm")))
pocket4 = doc.addObject("PartDesign::Pocket", "Pocket003")
body.addObject(pocket4)
pocket4.Profile = sketch13
pocket4.Length = 59
pocket4.Reversed = True

sketch14 = doc.addObject("Sketcher::SketchObject", "Sketch013")
body.addObject(sketch14)
sketch14.AttachmentSupport = (doc.YZ_Plane, [""])
sketch14.MapMode = "FlatFace"
sketch14.AttachmentOffset = App.Placement(V(0, 0, -15.680284), App.Rotation())
sketch14.addGeometry(Part.LineSegment(V(3.6, 16.1, 0), V(-2.6, 16.1, 0)), False)
sketch14.addGeometry(Part.LineSegment(V(-2.6, 16.1, 0), V(-2.6, 19.3, 0)), False)
sketch14.addGeometry(Part.LineSegment(V(-2.6, 19.3, 0), V(3.6, 19.3, 0)), False)
sketch14.addGeometry(Part.LineSegment(V(3.6, 19.3, 0), V(3.6, 16.1, 0)), False)
sketch14.addGeometry(Part.LineSegment(V(13.9, 15.8, 0), V(7.7, 15.8, 0)), False)
sketch14.addGeometry(Part.LineSegment(V(7.7, 15.8, 0), V(7.7, 19, 0)), False)
sketch14.addGeometry(Part.LineSegment(V(7.7, 19, 0), V(13.9, 19, 0)), False)
sketch14.addGeometry(Part.LineSegment(V(13.9, 19, 0), V(13.9, 15.8, 0)), False)
sketch14.addConstraint(Sketcher.Constraint("Coincident", 0, 2, 1, 1))
sketch14.addConstraint(Sketcher.Constraint("Coincident", 1, 2, 2, 1))
sketch14.addConstraint(Sketcher.Constraint("Coincident", 2, 2, 3, 1))
sketch14.addConstraint(Sketcher.Constraint("Coincident", 3, 2, 0, 1))
sketch14.addConstraint(Sketcher.Constraint("Coincident", 4, 2, 5, 1))
sketch14.addConstraint(Sketcher.Constraint("Coincident", 5, 2, 6, 1))
sketch14.addConstraint(Sketcher.Constraint("Coincident", 6, 2, 7, 1))
sketch14.addConstraint(Sketcher.Constraint("Coincident", 7, 2, 4, 1))
sketch14.addConstraint(Sketcher.Constraint("Horizontal", 0))
sketch14.addConstraint(Sketcher.Constraint("Vertical", 1))
sketch14.addConstraint(Sketcher.Constraint("Horizontal", 2))
sketch14.addConstraint(Sketcher.Constraint("Vertical", 3))
sketch14.addConstraint(Sketcher.Constraint("Horizontal", 4))
sketch14.addConstraint(Sketcher.Constraint("Vertical", 5))
sketch14.addConstraint(Sketcher.Constraint("Horizontal", 6))
sketch14.addConstraint(Sketcher.Constraint("Vertical", 7))
sketch14.addConstraint(Sketcher.Constraint("Equal", 2, 4))
sketch14.addConstraint(Sketcher.Constraint("Equal", 3, 5))
sketch14.addConstraint(Sketcher.Constraint("DistanceX", 0, 2, 0, 1, Q("6.2 mm")))
sketch14.addConstraint(Sketcher.Constraint("DistanceY", 1, 1, 1, 2, Q("3.2 mm")))
sketch14.addConstraint(Sketcher.Constraint("DistanceY", -1, 1, 4, 2, Q("15.8092 mm")))
sketch14.addConstraint(Sketcher.Constraint("DistanceY", -1, 1, 0, 2, Q("16.10699 mm")))
sketch14.addConstraint(Sketcher.Constraint("DistanceX", 3, 2, 4, 2, Q("4.155688 mm")))
sketch14.addConstraint(Sketcher.Constraint("DistanceX", 0, 2, -1, 1, Q("2.624404 mm")))
pocket5 = doc.addObject("PartDesign::Pocket", "Pocket004")
body.addObject(pocket5)
pocket5.Profile = sketch14
pocket5.Length = 59
pocket5.Reversed = True

sketch15 = doc.addObject("Sketcher::SketchObject", "Sketch014")
body.addObject(sketch15)
sketch15.AttachmentSupport = (doc.XY_Plane, [""])
sketch15.MapMode = "FlatFace"
sketch15.addGeometry(Part.Circle(V(55.8, 31.5, 0), V(0, 0, 1), 1.5), False)
sketch15.addConstraint(Sketcher.Constraint("Diameter", 0, Q("3 mm")))
sketch15.addConstraint(Sketcher.Constraint("DistanceY", -1, 1, 0, 3, Q("31.5 mm")))
sketch15.addConstraint(Sketcher.Constraint("DistanceX", -1, 1, 0, 3, Q("55.819716 mm")))
pocket6 = doc.addObject("PartDesign::Pocket", "Pocket005")
body.addObject(pocket6)
pocket6.Profile = sketch15
pocket6.Length = 59
pocket6.Reversed = True

sketch16 = doc.addObject("Sketcher::SketchObject", "Sketch015")
body.addObject(sketch16)
sketch16.AttachmentSupport = (doc.XZ_Plane, [""])
sketch16.MapMode = "FlatFace"
sketch16.addGeometry(Part.LineSegment(V(12.6, 4, 0), V(12.6, 10, 0)), False)
sketch16.addGeometry(Part.LineSegment(V(12.6, 10, 0), V(10.3, 10, 0)), False)
sketch16.addGeometry(Part.LineSegment(V(10.3, 10, 0), V(10.3, 4, 0)), False)
sketch16.addGeometry(Part.LineSegment(V(10.3, 4, 0), V(12.6, 4, 0)), False)
sketch16.addConstraint(Sketcher.Constraint("Coincident", 0, 2, 1, 1))
sketch16.addConstraint(Sketcher.Constraint("Coincident", 1, 2, 2, 1))
sketch16.addConstraint(Sketcher.Constraint("Coincident", 2, 2, 3, 1))
sketch16.addConstraint(Sketcher.Constraint("Coincident", 3, 2, 0, 1))
sketch16.addConstraint(Sketcher.Constraint("Vertical", 0))
sketch16.addConstraint(Sketcher.Constraint("Horizontal", 1))
sketch16.addConstraint(Sketcher.Constraint("Vertical", 2))
sketch16.addConstraint(Sketcher.Constraint("Horizontal", 3))
sketch16.addConstraint(Sketcher.Constraint("DistanceY", 0, 1, 0, 2, Q("6 mm")))
sketch16.addConstraint(Sketcher.Constraint("DistanceY", -1, 1, 0, 2, Q("10 mm")))
sketch16.addConstraint(Sketcher.Constraint("DistanceX", 1, 2, 1, 1, Q("2.316346 mm")))
sketch16.addConstraint(Sketcher.Constraint("DistanceX", -1, 1, 0, 2, Q("12.636061 mm")))
pocket7 = doc.addObject("PartDesign::Pocket", "Pocket006")
body.addObject(pocket7)
pocket7.Profile = sketch16
pocket7.Length = 13
doc.recompute()

fillet = doc.addObject("PartDesign::Fillet", "Fillet")
body.addObject(fillet)
fillet.Base = (pocket7, edges_at(pocket7, [
    (60.32, -24, 5),
    (-59.68, -24, 5),
    (60.32, 36, 5),
    (-59.68, 36, 5),
]))
fillet.Radius = 8

sketch17 = doc.addObject("Sketcher::SketchObject", "Sketch016")
body.addObject(sketch17)
sketch17.AttachmentSupport = (doc.XY_Plane, [""])
sketch17.MapMode = "FlatFace"
sketch17.addGeometry(Part.Circle(V(-51, 33.3, 0), V(0, 0, 1), 0.8), False)
sketch17.addGeometry(Part.Circle(V(-45.5, 33, 0), V(0, 0, 1), 0.8), False)
sketch17.addGeometry(Part.Circle(V(-56.4, 27.1, 0), V(0, 0, 1), 0.8), False)
sketch17.addGeometry(Part.Circle(V(46.3, -21, 0), V(0, 0, 1), 0.8), False)
sketch17.addGeometry(Part.Circle(V(51.8, -21.3, 0), V(0, 0, 1), 0.8), False)
sketch17.addGeometry(Part.Circle(V(57.2, -15.1, 0), V(0, 0, 1), 0.8), False)
sketch17.addGeometry(Part.Circle(V(-45.5, 27.1, 0), V(0, 0, 1), 0.8), False)
sketch17.addGeometry(Part.Circle(V(46.3, -15.1, 0), V(0, 0, 1), 0.8), False)
sketch17.addConstraint(Sketcher.Constraint("Equal", 0, 1))
sketch17.addConstraint(Sketcher.Constraint("Equal", 1, 2))
sketch17.addConstraint(Sketcher.Constraint("Equal", 2, 3))
sketch17.addConstraint(Sketcher.Constraint("Equal", 3, 4))
sketch17.addConstraint(Sketcher.Constraint("Equal", 4, 5))
sketch17.addConstraint(Sketcher.Constraint("Equal", 5, 6))
sketch17.addConstraint(Sketcher.Constraint("Equal", 6, 7))
sketch17.addConstraint(Sketcher.Constraint("Horizontal", 2, 3, 6, 3))
sketch17.addConstraint(Sketcher.Constraint("Horizontal", 5, 3, 7, 3))
sketch17.addConstraint(Sketcher.Constraint("Vertical", 1, 3, 6, 3))
sketch17.addConstraint(Sketcher.Constraint("Vertical", 3, 3, 7, 3))
sketch17.addConstraint(Sketcher.Constraint("Diameter", 0, Q("1.7 mm")))
sketch17.addConstraint(Sketcher.Constraint("DistanceX", 0, 3, 1, 3, Q("5.5 mm")))
sketch17.addConstraint(Sketcher.Constraint("DistanceX", 3, 3, 4, 3, Q("5.5 mm")))
sketch17.addConstraint(Sketcher.Constraint("DistanceX", 0, 3, -1, 1, Q("51.035619 mm")))
sketch17.addConstraint(Sketcher.Constraint("DistanceY", -1, 1, 1, 3, Q("32.990149 mm")))
sketch17.addConstraint(Sketcher.Constraint("DistanceX", -1, 1, 3, 3, Q("46.27964 mm")))
sketch17.addConstraint(Sketcher.Constraint("DistanceY", 1, 3, 0, 3, Q("0.278258 mm")))
sketch17.addConstraint(Sketcher.Constraint("DistanceY", 3, 3, 2, 3, Q("48.126431 mm")))
sketch17.addConstraint(Sketcher.Constraint("DistanceY", 4, 3, 3, 3, Q("0.278258 mm")))
sketch17.addConstraint(Sketcher.Constraint("DistanceY", 4, 3, 0, 3, Q("54.559121 mm")))
sketch17.addConstraint(Sketcher.Constraint("DistanceY", 5, 3, 1, 3, Q("48.126431 mm")))
sketch17.addConstraint(Sketcher.Constraint("DistanceX", 2, 3, 5, 3, Q("113.562351 mm")))
sketch17.addConstraint(Sketcher.Constraint("DistanceX", 2, 3, -1, 1, Q("56.409164 mm")))
pocket8 = doc.addObject("PartDesign::Pocket", "Pocket007")
body.addObject(pocket8)
pocket8.Profile = sketch17
pocket8.Length = 6
pocket8.Reversed = True

doc.recompute()
